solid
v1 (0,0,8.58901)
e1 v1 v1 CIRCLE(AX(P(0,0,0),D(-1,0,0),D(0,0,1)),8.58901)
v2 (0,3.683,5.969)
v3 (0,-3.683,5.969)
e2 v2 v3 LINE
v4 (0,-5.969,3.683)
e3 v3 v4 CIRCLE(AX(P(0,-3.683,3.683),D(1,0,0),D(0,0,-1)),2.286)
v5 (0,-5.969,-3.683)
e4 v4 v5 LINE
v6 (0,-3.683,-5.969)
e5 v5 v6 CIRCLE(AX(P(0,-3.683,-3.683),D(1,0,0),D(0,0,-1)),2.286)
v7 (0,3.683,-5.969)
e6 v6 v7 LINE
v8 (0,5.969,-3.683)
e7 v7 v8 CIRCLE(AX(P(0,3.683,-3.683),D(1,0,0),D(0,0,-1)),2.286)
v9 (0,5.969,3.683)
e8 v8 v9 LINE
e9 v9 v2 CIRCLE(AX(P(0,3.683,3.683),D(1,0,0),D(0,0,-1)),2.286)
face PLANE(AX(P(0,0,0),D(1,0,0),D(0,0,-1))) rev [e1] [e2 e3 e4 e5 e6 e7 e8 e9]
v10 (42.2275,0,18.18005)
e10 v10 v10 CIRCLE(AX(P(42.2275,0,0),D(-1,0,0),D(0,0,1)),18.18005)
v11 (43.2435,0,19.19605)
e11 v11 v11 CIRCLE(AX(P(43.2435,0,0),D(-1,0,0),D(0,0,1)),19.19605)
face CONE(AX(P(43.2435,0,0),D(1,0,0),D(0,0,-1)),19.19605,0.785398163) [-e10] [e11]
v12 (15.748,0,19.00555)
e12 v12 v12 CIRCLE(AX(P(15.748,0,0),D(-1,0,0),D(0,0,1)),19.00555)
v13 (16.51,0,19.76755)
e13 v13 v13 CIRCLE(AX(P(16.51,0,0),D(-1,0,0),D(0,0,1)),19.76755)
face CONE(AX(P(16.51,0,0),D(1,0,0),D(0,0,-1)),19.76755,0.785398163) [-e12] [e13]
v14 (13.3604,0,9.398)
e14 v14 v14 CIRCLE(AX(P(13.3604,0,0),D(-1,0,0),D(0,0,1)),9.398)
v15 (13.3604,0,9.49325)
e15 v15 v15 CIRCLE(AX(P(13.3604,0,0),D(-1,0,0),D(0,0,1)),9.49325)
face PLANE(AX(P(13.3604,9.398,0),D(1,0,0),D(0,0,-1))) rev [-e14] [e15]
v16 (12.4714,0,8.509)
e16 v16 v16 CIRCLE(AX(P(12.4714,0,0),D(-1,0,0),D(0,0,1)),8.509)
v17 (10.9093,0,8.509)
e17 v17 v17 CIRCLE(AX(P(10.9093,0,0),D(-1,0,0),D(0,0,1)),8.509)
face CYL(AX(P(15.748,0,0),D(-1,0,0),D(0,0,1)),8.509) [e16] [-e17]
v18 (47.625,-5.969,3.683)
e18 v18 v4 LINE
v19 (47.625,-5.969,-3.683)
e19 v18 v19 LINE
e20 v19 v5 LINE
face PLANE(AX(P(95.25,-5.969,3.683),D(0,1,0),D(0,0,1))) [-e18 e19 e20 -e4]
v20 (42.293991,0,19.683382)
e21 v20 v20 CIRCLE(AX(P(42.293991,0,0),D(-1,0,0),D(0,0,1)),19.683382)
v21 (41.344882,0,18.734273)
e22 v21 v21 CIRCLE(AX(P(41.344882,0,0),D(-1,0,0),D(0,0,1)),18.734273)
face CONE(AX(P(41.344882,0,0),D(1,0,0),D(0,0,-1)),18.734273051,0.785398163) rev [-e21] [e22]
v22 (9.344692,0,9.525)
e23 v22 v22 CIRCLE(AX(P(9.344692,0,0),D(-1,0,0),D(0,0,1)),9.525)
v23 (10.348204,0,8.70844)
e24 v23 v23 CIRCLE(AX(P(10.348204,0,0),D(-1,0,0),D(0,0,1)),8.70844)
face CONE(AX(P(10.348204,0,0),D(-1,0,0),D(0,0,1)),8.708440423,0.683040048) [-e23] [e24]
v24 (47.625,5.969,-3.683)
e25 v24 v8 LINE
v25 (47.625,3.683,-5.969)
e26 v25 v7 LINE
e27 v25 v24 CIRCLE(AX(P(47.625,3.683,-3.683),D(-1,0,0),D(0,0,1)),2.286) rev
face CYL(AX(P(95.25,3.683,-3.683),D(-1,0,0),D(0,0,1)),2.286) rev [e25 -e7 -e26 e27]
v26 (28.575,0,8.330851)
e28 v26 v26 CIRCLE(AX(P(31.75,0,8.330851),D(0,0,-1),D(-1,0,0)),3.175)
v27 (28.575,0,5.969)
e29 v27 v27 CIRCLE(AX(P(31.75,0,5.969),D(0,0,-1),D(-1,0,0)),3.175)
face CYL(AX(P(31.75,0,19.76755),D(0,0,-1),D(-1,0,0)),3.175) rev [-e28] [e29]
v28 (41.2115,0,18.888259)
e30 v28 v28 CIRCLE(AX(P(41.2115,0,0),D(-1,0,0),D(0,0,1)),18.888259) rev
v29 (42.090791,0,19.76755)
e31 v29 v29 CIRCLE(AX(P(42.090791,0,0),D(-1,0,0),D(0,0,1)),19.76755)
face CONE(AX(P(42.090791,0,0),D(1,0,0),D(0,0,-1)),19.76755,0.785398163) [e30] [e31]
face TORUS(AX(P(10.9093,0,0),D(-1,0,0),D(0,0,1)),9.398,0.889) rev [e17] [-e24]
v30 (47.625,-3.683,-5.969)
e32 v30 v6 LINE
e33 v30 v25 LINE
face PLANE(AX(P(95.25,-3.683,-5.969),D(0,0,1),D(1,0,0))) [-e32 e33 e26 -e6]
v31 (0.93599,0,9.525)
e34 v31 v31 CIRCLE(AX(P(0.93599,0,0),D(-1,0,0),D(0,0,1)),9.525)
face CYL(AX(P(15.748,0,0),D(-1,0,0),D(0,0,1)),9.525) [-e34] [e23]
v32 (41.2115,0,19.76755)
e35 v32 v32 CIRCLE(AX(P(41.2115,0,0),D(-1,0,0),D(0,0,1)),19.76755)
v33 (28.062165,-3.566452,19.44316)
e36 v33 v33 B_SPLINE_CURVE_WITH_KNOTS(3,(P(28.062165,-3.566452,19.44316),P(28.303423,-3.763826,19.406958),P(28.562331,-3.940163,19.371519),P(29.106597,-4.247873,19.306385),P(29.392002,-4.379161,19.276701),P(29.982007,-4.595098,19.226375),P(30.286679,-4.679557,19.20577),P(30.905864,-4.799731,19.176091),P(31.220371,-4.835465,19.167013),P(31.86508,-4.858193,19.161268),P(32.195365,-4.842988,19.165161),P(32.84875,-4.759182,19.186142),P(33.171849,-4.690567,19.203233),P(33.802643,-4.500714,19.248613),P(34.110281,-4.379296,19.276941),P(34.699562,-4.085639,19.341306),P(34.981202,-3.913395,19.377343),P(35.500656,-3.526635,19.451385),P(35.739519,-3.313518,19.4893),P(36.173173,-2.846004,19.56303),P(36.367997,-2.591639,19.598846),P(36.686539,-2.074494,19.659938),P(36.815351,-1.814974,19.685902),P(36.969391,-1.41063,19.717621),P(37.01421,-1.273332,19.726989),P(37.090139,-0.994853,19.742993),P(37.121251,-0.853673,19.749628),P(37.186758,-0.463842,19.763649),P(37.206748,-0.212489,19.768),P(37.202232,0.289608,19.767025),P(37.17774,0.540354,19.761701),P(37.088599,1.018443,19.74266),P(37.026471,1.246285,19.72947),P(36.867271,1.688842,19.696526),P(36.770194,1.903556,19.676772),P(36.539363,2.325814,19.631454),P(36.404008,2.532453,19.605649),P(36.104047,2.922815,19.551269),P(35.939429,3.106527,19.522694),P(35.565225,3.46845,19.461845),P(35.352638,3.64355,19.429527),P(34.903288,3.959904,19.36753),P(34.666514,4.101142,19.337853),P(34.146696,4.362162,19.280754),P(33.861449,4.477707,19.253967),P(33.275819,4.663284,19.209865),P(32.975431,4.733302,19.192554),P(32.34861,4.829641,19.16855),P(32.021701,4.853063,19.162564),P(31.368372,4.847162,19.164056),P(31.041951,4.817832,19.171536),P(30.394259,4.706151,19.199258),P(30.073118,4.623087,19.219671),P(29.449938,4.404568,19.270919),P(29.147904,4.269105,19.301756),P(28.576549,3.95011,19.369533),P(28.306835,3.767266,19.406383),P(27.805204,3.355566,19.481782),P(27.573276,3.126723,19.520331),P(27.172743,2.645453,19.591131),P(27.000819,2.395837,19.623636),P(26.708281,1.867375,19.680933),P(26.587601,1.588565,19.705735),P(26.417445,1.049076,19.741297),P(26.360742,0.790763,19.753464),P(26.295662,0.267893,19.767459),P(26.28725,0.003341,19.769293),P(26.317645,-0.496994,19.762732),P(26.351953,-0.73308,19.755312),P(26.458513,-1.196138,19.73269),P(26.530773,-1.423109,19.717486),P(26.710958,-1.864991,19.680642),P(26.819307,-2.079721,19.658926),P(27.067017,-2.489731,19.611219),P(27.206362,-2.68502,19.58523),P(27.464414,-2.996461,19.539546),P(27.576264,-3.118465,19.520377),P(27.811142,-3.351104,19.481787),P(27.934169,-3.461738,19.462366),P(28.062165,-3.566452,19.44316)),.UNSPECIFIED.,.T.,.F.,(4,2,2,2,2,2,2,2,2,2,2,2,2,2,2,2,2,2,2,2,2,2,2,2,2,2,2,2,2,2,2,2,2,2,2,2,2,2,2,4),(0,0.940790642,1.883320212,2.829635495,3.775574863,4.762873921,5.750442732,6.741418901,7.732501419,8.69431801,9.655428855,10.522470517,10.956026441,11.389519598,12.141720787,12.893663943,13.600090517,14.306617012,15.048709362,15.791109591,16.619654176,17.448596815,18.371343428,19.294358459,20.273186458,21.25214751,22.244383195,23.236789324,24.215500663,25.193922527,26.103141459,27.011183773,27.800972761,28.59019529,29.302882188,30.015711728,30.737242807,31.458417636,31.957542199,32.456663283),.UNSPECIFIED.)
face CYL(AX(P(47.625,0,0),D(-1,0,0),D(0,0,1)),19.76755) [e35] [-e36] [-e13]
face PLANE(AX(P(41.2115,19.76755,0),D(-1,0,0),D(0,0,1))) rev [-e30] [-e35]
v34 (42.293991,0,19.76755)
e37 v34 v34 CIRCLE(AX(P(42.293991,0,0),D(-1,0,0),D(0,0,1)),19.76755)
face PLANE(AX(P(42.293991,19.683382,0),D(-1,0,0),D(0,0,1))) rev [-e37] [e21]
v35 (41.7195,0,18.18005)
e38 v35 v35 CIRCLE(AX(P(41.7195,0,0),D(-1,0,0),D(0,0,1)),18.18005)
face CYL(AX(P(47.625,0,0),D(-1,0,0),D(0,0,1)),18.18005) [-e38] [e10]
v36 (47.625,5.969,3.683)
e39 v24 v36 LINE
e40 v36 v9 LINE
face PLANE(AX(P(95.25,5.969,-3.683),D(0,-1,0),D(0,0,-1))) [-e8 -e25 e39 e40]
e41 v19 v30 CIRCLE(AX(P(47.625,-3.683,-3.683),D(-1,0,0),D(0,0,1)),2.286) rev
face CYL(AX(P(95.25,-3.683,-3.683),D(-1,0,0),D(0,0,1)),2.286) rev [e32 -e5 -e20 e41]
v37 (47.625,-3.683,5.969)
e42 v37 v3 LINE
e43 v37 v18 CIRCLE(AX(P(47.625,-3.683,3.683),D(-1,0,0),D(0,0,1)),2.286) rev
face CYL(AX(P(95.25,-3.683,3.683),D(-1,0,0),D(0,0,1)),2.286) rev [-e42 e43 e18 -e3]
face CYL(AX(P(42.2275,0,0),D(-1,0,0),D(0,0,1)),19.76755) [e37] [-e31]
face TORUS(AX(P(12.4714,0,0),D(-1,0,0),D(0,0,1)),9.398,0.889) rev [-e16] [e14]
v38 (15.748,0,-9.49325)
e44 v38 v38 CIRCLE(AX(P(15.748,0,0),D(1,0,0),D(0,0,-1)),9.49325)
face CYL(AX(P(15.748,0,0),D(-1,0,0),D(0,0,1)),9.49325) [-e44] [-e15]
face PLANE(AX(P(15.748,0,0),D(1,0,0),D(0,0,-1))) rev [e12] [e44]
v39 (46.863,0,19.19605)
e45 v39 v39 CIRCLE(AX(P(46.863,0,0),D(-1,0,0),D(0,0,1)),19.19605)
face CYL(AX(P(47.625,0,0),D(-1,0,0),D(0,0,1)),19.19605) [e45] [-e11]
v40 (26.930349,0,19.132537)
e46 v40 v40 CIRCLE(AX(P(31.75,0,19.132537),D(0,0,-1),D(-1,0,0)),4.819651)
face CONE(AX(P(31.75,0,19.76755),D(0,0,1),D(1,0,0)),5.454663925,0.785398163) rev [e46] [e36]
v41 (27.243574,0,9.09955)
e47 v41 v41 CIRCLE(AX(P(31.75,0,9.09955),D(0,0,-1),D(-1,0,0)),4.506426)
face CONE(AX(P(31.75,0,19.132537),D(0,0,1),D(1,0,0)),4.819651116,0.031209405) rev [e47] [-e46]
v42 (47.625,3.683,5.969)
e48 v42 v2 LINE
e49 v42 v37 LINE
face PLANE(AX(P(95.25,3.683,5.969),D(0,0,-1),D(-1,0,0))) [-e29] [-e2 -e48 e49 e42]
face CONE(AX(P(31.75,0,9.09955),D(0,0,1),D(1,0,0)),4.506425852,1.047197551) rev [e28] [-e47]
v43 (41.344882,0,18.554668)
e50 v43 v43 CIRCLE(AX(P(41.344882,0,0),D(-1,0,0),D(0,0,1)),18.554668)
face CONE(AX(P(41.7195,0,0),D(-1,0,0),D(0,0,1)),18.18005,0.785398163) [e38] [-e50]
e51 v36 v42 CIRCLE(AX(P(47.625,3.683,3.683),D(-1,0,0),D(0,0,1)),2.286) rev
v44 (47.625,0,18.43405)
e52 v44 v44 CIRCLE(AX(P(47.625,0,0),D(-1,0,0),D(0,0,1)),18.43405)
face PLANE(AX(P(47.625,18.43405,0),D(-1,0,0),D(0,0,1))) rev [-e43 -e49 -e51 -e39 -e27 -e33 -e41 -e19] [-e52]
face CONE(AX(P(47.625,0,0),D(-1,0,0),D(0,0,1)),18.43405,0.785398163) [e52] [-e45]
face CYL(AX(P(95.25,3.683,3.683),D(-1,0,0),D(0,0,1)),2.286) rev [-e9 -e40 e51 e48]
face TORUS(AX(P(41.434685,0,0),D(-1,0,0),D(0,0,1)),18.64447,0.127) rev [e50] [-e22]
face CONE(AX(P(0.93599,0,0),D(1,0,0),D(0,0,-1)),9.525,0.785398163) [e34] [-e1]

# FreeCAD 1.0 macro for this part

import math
import FreeCAD as App
import Part
import Sketcher
Q = App.Units.Quantity

doc = App.newDocument("Part")
body = doc.addObject("PartDesign::Body", "Body")

# Sketch on XY plane
sketch1 = body.newObject("Sketcher::SketchObject", "Sketch")
sketch1.AttachmentSupport = (doc.getObject("XY_Plane"), [""])
sketch1.MapMode = "FlatFace"
sketch1.addGeometry([
    Part.LineSegment(App.Vector(0, 8.59, 0), App.Vector(0, 0, 0)),  # 0
    Part.LineSegment(App.Vector(0, 0, 0), App.Vector(15.75, 0, 0)),  # 1
    Part.LineSegment(App.Vector(15.75, 0, 0), App.Vector(15.75, 9.49, 0)),  # 2
    Part.LineSegment(App.Vector(15.75, 9.49, 0), App.Vector(13.36, 9.49, 0)),  # 3
    Part.LineSegment(App.Vector(13.36, 9.49, 0), App.Vector(13.36, 9.4, 0)),  # 4
    Part.ArcOfCircle(Part.Circle(App.Vector(12.47, 9.4, 0), App.Vector(0, 0, 1), 0.89), math.radians(-90), math.radians(0)),  # 5
    Part.LineSegment(App.Vector(12.47, 8.51, 0), App.Vector(10.91, 8.51, 0)),  # 6
    Part.ArcOfCircle(Part.Circle(App.Vector(10.91, 9.4, 0), App.Vector(0, 0, 1), 0.89), math.radians(-129), math.radians(-90)),  # 7
    Part.LineSegment(App.Vector(10.35, 8.71, 0), App.Vector(9.34, 9.53, 0)),  # 8
    Part.LineSegment(App.Vector(9.34, 9.53, 0), App.Vector(0.94, 9.53, 0)),  # 9
    Part.LineSegment(App.Vector(0.94, 9.53, 0), App.Vector(0, 8.59, 0)),  # 10
], False)
sketch1.addConstraint([
    Sketcher.Constraint("Coincident", 0, 2, 1, 1),
    Sketcher.Constraint("Coincident", 1, 2, 2, 1),
    Sketcher.Constraint("Coincident", 2, 2, 3, 1),
    Sketcher.Constraint("Coincident", 3, 2, 4, 1),
    Sketcher.Constraint("Tangent", 4, 2, 5, 2),
    Sketcher.Constraint("Tangent", 5, 1, 6, 1),
    Sketcher.Constraint("Tangent", 6, 2, 7, 2),
    Sketcher.Constraint("Tangent", 7, 1, 8, 1),
    Sketcher.Constraint("Coincident", 8, 2, 9, 1),
    Sketcher.Constraint("Coincident", 9, 2, 10, 1),
    Sketcher.Constraint("Coincident", 10, 2, 0, 1),
    Sketcher.Constraint("Vertical", 0),
    Sketcher.Constraint("Horizontal", 1),
    Sketcher.Constraint("Vertical", 2),
    Sketcher.Constraint("Horizontal", 3),
    Sketcher.Constraint("Vertical", 4),
    Sketcher.Constraint("Horizontal", 6),
    Sketcher.Constraint("Horizontal", 9),
    Sketcher.Constraint("Coincident", 0, 2, -1, 1),
    Sketcher.Constraint("Equal", 5, 7),
    Sketcher.Constraint("Angle", 10, Q("-135 deg")),
    Sketcher.Constraint("Radius", 5, Q("0.035 in")),
    Sketcher.Constraint("DistanceX", 1, 1, 1, 2, Q("0.62 in")),
    Sketcher.Constraint("DistanceX", 3, 2, 3, 1, Q("0.094 in")),
    Sketcher.Constraint("DistanceY", -1, 1, 5, 3, Q("0.37 in")),
    Sketcher.Constraint("DistanceY", 6, 2, 8, 2, Q("0.04 in")),
    Sketcher.Constraint("DistanceX", 6, 2, 6, 1, Q("0.0615 in")),
    Sketcher.Constraint("DistanceY", 0, 2, 0, 1, Q("8.58901 mm")),
    Sketcher.Constraint("DistanceY", 2, 1, 2, 2, Q("9.49325 mm")),
    Sketcher.Constraint("DistanceX", 9, 2, 9, 1, Q("8.408702 mm")),
])
revolution = body.newObject("PartDesign::Revolution", "Revolution")
revolution.Profile = sketch1
revolution.ReferenceAxis = (sketch1, ["H_Axis"])
revolution.Angle = 360

# Sketch on XY plane
sketch2 = body.newObject("Sketcher::SketchObject", "Sketch001")
sketch2.AttachmentSupport = (doc.getObject("XY_Plane"), [""])
sketch2.MapMode = "FlatFace"
sketch2.addGeometry([
    Part.LineSegment(App.Vector(15.7, 19, 0), App.Vector(15.7, 0, 0)),  # 0
    Part.LineSegment(App.Vector(15.7, 0, 0), App.Vector(47.6, 0, 0)),  # 1
    Part.LineSegment(App.Vector(47.6, 0, 0), App.Vector(47.6, 18.4, 0)),  # 2
    Part.LineSegment(App.Vector(47.6, 18.4, 0), App.Vector(46.9, 19.2, 0)),  # 3
    Part.LineSegment(App.Vector(46.9, 19.2, 0), App.Vector(43.2, 19.2, 0)),  # 4
    Part.LineSegment(App.Vector(43.2, 19.2, 0), App.Vector(42.2, 18.2, 0)),  # 5
    Part.LineSegment(App.Vector(42.2, 18.2, 0), App.Vector(41.2, 18.2, 0)),  # 6
    Part.LineSegment(App.Vector(41.2, 18.2, 0), App.Vector(41.2, 19.8, 0)),  # 7
    Part.LineSegment(App.Vector(41.2, 19.8, 0), App.Vector(16.5, 19.8, 0)),  # 8
    Part.LineSegment(App.Vector(16.5, 19.8, 0), App.Vector(15.7, 19, 0)),  # 9
], False)
sketch2.addConstraint([
    Sketcher.Constraint("Coincident", 0, 2, 1, 1),
    Sketcher.Constraint("Coincident", 1, 2, 2, 1),
    Sketcher.Constraint("Coincident", 2, 2, 3, 1),
    Sketcher.Constraint("Coincident", 3, 2, 4, 1),
    Sketcher.Constraint("Coincident", 4, 2, 5, 1),
    Sketcher.Constraint("Coincident", 5, 2, 6, 1),
    Sketcher.Constraint("Coincident", 6, 2, 7, 1),
    Sketcher.Constraint("Coincident", 7, 2, 8, 1),
    Sketcher.Constraint("Coincident", 8, 2, 9, 1),
    Sketcher.Constraint("Coincident", 9, 2, 0, 1),
    Sketcher.Constraint("Vertical", 0),
    Sketcher.Constraint("Horizontal", 1),
    Sketcher.Constraint("Vertical", 2),
    Sketcher.Constraint("Horizontal", 4),
    Sketcher.Constraint("Horizontal", 6),
    Sketcher.Constraint("Vertical", 7),
    Sketcher.Constraint("Horizontal", 8),
    Sketcher.Constraint("PointOnObject", 0, 2, -1),
    Sketcher.Constraint("Perpendicular", 3, 5),
    Sketcher.Constraint("Parallel", 5, 9),
    Sketcher.Constraint("Equal", 3, 9),
    Sketcher.Constraint("Angle", 3, Q("135 deg")),
    Sketcher.Constraint("DistanceX", 6, 2, 6, 1, Q("0.04 in")),
    Sketcher.Constraint("DistanceX", 1, 1, 1, 2, Q("1.255 in")),
    Sketcher.Constraint("DistanceY", 7, 1, 7, 2, Q("0.0625 in")),
    Sketcher.Constraint("DistanceX", -1, 1, 0, 2, Q("0.62 in")),
    Sketcher.Constraint("DistanceX", -1, 1, 8, 2, Q("0.65 in")),
    Sketcher.Constraint("DistanceX", 5, 2, 4, 2, Q("0.04 in")),
    Sketcher.Constraint("DistanceX", 4, 2, 4, 1, Q("0.1425 in")),
    Sketcher.Constraint("DistanceY", 0, 2, 0, 1, Q("19.00555 mm")),
])
revolution2 = body.newObject("PartDesign::Revolution", "Revolution001")
revolution2.Profile = sketch2
revolution2.ReferenceAxis = (sketch2, ["H_Axis"])
revolution2.Angle = 360

# Sketch on XZ plane
sketch3 = body.newObject("Sketcher::SketchObject", "Sketch002")
sketch3.AttachmentSupport = (doc.getObject("XZ_Plane"), [""])
sketch3.MapMode = "FlatFace"
sketch3.addGeometry([
    Part.LineSegment(App.Vector(34.9, 0, 0), App.Vector(31.8, 0, 0)),  # 0
    Part.LineSegment(App.Vector(31.8, 0, 0), App.Vector(31.8, 19.8, 0)),  # 1
    Part.LineSegment(App.Vector(31.8, 19.8, 0), App.Vector(37.2, 19.8, 0)),  # 2
    Part.LineSegment(App.Vector(37.2, 19.8, 0), App.Vector(36.6, 19.1, 0)),  # 3
    Part.LineSegment(App.Vector(36.6, 19.1, 0), App.Vector(36.3, 9.1, 0)),  # 4
    Part.LineSegment(App.Vector(36.3, 9.1, 0), App.Vector(34.9, 8.3, 0)),  # 5
    Part.LineSegment(App.Vector(34.9, 8.3, 0), App.Vector(34.9, 0, 0)),  # 6
], False)
sketch3.addGeometry(Part.LineSegment(App.Vector(31.8, 19.8, 0), App.Vector(31.8, 0, 0)), True)  # axis
sketch3.addConstraint([
    Sketcher.Constraint("Coincident", 0, 2, 1, 1),
    Sketcher.Constraint("Coincident", 1, 2, 2, 1),
    Sketcher.Constraint("Coincident", 2, 2, 3, 1),
    Sketcher.Constraint("Coincident", 3, 2, 4, 1),
    Sketcher.Constraint("Coincident", 4, 2, 5, 1),
    Sketcher.Constraint("Coincident", 5, 2, 6, 1),
    Sketcher.Constraint("Coincident", 6, 2, 0, 1),
    Sketcher.Constraint("Horizontal", 0),
    Sketcher.Constraint("Vertical", 1),
    Sketcher.Constraint("Horizontal", 2),
    Sketcher.Constraint("Vertical", 6),
    Sketcher.Constraint("Vertical", 7),
    Sketcher.Constraint("Coincident", 7, 1, 1, 2),
    Sketcher.Constraint("PointOnObject", 0, 2, -1),
    Sketcher.Constraint("PointOnObject", 7, 2, -1),
    Sketcher.Constraint("Angle", 3, Q("-135 deg")),
    Sketcher.Constraint("Angle", 5, Q("-150 deg")),
    Sketcher.Constraint("DistanceX", 0, 2, 0, 1, Q("0.125 in")),
    Sketcher.Constraint("DistanceX", -1, 1, 0, 2, Q("1.25 in")),
    Sketcher.Constraint("DistanceY", 4, 2, 2, 2, Q("0.42 in")),
    Sketcher.Constraint("Distance", 5, Q("1.537398 mm")),
    Sketcher.Constraint("DistanceY", 1, 1, 1, 2, Q("19.76755 mm")),
    Sketcher.Constraint("DistanceX", 2, 1, 2, 2, Q("5.454664 mm")),
    Sketcher.Constraint("DistanceX", -1, 1, 3, 2, Q("36.569651 mm")),
])
groove = body.newObject("PartDesign::Groove", "Groove")
groove.Profile = sketch3
groove.ReferenceAxis = (sketch3, ["Axis0"])
groove.Angle = 360

# Sketch on XY plane
sketch4 = body.newObject("Sketcher::SketchObject", "Sketch003")
sketch4.AttachmentSupport = (doc.getObject("XY_Plane"), [""])
sketch4.MapMode = "FlatFace"
sketch4.addGeometry([
    Part.LineSegment(App.Vector(41.21, 17.93, 0), App.Vector(42.23, 17.93, 0)),  # 0
    Part.LineSegment(App.Vector(42.23, 17.93, 0), App.Vector(42.23, 18.18, 0)),  # 1
    Part.LineSegment(App.Vector(42.23, 18.18, 0), App.Vector(41.72, 18.18, 0)),  # 2
    Part.LineSegment(App.Vector(41.72, 18.18, 0), App.Vector(41.34, 18.55, 0)),  # 3
    Part.ArcOfCircle(Part.Circle(App.Vector(41.43, 18.64, 0), App.Vector(0, 0, 1), 0.13), math.radians(135), math.radians(225)),  # 4
    Part.LineSegment(App.Vector(41.34, 18.73, 0), App.Vector(42.29, 19.68, 0)),  # 5
    Part.LineSegment(App.Vector(42.29, 19.68, 0), App.Vector(42.29, 19.77, 0)),  # 6
    Part.LineSegment(App.Vector(42.29, 19.77, 0), App.Vector(42.09, 19.77, 0)),  # 7
    Part.LineSegment(App.Vector(42.09, 19.77, 0), App.Vector(41.21, 18.89, 0)),  # 8
    Part.LineSegment(App.Vector(41.21, 18.89, 0), App.Vector(41.21, 17.93, 0)),  # 9
], False)
sketch4.addConstraint([
    Sketcher.Constraint("Coincident", 0, 2, 1, 1),
    Sketcher.Constraint("Coincident", 1, 2, 2, 1),
    Sketcher.Constraint("Coincident", 2, 2, 3, 1),
    Sketcher.Constraint("Tangent", 3, 2, 4, 2),
    Sketcher.Constraint("Tangent", 4, 1, 5, 1),
    Sketcher.Constraint("Coincident", 5, 2, 6, 1),
    Sketcher.Constraint("Coincident", 6, 2, 7, 1),
    Sketcher.Constraint("Coincident", 7, 2, 8, 1),
    Sketcher.Constraint("Coincident", 8, 2, 9, 1),
    Sketcher.Constraint("Coincident", 9, 2, 0, 1),
    Sketcher.Constraint("Horizontal", 0),
    Sketcher.Constraint("Vertical", 1),
    Sketcher.Constraint("Horizontal", 2),
    Sketcher.Constraint("Vertical", 6),
    Sketcher.Constraint("Horizontal", 7),
    Sketcher.Constraint("Vertical", 9),
    Sketcher.Constraint("Perpendicular", 3, 5),
    Sketcher.Constraint("Parallel", 5, 8),
    Sketcher.Constraint("Vertical", 3, 2, 4, 1),
    Sketcher.Constraint("Radius", 4, Q("0.005 in")),
    Sketcher.Constraint("DistanceX", 0, 1, 0, 2, Q("0.04 in")),
    Sketcher.Constraint("DistanceX", 2, 2, 2, 1, Q("0.02 in")),
    Sketcher.Constraint("DistanceY", 1, 1, 1, 2, Q("0.01 in")),
    Sketcher.Constraint("DistanceX", 7, 2, 7, 1, Q("0.008 in")),
    Sketcher.Constraint("DistanceY", 1, 2, 6, 2, Q("0.0625 in")),
    Sketcher.Constraint("DistanceX", -1, 1, 0, 2, Q("1.6625 in")),
    Sketcher.Constraint("DistanceY", 6, 1, 6, 2, Q("0.084168 mm")),
    Sketcher.Constraint("DistanceY", 9, 2, 9, 1, Q("0.962209 mm")),
    Sketcher.Constraint("DistanceY", -1, 1, 4, 3, Q("18.64447 mm")),
])
revolution3 = body.newObject("PartDesign::Revolution", "Revolution002")
revolution3.Profile = sketch4
revolution3.ReferenceAxis = (sketch4, ["H_Axis"])
revolution3.Angle = 360

# Sketch on YZ plane
sketch5 = body.newObject("Sketcher::SketchObject", "Sketch004")
sketch5.AttachmentSupport = (doc.getObject("YZ_Plane"), [""])
sketch5.MapMode = "FlatFace"
sketch5.addGeometry([
    Part.LineSegment(App.Vector(3.7, 6, 0), App.Vector(-3.7, 6, 0)),  # 0
    Part.ArcOfCircle(Part.Circle(App.Vector(-3.7, 3.7, 0), App.Vector(0, 0, 1), 2.3), math.radians(90), math.radians(180)),  # 1
    Part.LineSegment(App.Vector(-6, 3.7, 0), App.Vector(-6, -3.7, 0)),  # 2
    Part.ArcOfCircle(Part.Circle(App.Vector(-3.7, -3.7, 0), App.Vector(0, 0, 1), 2.3), math.radians(180), math.radians(270)),  # 3
    Part.LineSegment(App.Vector(-3.7, -6, 0), App.Vector(3.7, -6, 0)),  # 4
    Part.ArcOfCircle(Part.Circle(App.Vector(3.7, -3.7, 0), App.Vector(0, 0, 1), 2.3), math.radians(-90), math.radians(0)),  # 5
    Part.LineSegment(App.Vector(6, -3.7, 0), App.Vector(6, 3.7, 0)),  # 6
    Part.ArcOfCircle(Part.Circle(App.Vector(3.7, 3.7, 0), App.Vector(0, 0, 1), 2.3), math.radians(0), math.radians(90)),  # 7
], False)
sketch5.addConstraint([
    Sketcher.Constraint("Tangent", 0, 2, 1, 1),
    Sketcher.Constraint("Tangent", 1, 2, 2, 1),
    Sketcher.Constraint("Tangent", 2, 2, 3, 1),
    Sketcher.Constraint("Tangent", 3, 2, 4, 1),
    Sketcher.Constraint("Tangent", 4, 2, 5, 1),
    Sketcher.Constraint("Tangent", 5, 2, 6, 1),
    Sketcher.Constraint("Tangent", 6, 2, 7, 1),
    Sketcher.Constraint("Tangent", 7, 2, 0, 1),
    Sketcher.Constraint("Horizontal", 0),
    Sketcher.Constraint("Vertical", 2),
    Sketcher.Constraint("Horizontal", 4),
    Sketcher.Constraint("Vertical", 6),
    Sketcher.Constraint("Equal", 1, 3),
    Sketcher.Constraint("Equal", 3, 5),
    Sketcher.Constraint("Equal", 5, 7),
    Sketcher.Constraint("Symmetric", 1, 3, 5, 3, -1, 1),
    Sketcher.Constraint("Equal", 4, 2),
    Sketcher.Constraint("Radius", 1, Q("0.09 in")),
    Sketcher.Constraint("DistanceX", 0, 2, 0, 1, Q("0.29 in")),
])
pocket1 = body.newObject("PartDesign::Pocket", "Pocket")
pocket1.Profile = sketch5
pocket1.Length = Q("3.75 in")
pocket1.Reversed = True

doc.recompute()
